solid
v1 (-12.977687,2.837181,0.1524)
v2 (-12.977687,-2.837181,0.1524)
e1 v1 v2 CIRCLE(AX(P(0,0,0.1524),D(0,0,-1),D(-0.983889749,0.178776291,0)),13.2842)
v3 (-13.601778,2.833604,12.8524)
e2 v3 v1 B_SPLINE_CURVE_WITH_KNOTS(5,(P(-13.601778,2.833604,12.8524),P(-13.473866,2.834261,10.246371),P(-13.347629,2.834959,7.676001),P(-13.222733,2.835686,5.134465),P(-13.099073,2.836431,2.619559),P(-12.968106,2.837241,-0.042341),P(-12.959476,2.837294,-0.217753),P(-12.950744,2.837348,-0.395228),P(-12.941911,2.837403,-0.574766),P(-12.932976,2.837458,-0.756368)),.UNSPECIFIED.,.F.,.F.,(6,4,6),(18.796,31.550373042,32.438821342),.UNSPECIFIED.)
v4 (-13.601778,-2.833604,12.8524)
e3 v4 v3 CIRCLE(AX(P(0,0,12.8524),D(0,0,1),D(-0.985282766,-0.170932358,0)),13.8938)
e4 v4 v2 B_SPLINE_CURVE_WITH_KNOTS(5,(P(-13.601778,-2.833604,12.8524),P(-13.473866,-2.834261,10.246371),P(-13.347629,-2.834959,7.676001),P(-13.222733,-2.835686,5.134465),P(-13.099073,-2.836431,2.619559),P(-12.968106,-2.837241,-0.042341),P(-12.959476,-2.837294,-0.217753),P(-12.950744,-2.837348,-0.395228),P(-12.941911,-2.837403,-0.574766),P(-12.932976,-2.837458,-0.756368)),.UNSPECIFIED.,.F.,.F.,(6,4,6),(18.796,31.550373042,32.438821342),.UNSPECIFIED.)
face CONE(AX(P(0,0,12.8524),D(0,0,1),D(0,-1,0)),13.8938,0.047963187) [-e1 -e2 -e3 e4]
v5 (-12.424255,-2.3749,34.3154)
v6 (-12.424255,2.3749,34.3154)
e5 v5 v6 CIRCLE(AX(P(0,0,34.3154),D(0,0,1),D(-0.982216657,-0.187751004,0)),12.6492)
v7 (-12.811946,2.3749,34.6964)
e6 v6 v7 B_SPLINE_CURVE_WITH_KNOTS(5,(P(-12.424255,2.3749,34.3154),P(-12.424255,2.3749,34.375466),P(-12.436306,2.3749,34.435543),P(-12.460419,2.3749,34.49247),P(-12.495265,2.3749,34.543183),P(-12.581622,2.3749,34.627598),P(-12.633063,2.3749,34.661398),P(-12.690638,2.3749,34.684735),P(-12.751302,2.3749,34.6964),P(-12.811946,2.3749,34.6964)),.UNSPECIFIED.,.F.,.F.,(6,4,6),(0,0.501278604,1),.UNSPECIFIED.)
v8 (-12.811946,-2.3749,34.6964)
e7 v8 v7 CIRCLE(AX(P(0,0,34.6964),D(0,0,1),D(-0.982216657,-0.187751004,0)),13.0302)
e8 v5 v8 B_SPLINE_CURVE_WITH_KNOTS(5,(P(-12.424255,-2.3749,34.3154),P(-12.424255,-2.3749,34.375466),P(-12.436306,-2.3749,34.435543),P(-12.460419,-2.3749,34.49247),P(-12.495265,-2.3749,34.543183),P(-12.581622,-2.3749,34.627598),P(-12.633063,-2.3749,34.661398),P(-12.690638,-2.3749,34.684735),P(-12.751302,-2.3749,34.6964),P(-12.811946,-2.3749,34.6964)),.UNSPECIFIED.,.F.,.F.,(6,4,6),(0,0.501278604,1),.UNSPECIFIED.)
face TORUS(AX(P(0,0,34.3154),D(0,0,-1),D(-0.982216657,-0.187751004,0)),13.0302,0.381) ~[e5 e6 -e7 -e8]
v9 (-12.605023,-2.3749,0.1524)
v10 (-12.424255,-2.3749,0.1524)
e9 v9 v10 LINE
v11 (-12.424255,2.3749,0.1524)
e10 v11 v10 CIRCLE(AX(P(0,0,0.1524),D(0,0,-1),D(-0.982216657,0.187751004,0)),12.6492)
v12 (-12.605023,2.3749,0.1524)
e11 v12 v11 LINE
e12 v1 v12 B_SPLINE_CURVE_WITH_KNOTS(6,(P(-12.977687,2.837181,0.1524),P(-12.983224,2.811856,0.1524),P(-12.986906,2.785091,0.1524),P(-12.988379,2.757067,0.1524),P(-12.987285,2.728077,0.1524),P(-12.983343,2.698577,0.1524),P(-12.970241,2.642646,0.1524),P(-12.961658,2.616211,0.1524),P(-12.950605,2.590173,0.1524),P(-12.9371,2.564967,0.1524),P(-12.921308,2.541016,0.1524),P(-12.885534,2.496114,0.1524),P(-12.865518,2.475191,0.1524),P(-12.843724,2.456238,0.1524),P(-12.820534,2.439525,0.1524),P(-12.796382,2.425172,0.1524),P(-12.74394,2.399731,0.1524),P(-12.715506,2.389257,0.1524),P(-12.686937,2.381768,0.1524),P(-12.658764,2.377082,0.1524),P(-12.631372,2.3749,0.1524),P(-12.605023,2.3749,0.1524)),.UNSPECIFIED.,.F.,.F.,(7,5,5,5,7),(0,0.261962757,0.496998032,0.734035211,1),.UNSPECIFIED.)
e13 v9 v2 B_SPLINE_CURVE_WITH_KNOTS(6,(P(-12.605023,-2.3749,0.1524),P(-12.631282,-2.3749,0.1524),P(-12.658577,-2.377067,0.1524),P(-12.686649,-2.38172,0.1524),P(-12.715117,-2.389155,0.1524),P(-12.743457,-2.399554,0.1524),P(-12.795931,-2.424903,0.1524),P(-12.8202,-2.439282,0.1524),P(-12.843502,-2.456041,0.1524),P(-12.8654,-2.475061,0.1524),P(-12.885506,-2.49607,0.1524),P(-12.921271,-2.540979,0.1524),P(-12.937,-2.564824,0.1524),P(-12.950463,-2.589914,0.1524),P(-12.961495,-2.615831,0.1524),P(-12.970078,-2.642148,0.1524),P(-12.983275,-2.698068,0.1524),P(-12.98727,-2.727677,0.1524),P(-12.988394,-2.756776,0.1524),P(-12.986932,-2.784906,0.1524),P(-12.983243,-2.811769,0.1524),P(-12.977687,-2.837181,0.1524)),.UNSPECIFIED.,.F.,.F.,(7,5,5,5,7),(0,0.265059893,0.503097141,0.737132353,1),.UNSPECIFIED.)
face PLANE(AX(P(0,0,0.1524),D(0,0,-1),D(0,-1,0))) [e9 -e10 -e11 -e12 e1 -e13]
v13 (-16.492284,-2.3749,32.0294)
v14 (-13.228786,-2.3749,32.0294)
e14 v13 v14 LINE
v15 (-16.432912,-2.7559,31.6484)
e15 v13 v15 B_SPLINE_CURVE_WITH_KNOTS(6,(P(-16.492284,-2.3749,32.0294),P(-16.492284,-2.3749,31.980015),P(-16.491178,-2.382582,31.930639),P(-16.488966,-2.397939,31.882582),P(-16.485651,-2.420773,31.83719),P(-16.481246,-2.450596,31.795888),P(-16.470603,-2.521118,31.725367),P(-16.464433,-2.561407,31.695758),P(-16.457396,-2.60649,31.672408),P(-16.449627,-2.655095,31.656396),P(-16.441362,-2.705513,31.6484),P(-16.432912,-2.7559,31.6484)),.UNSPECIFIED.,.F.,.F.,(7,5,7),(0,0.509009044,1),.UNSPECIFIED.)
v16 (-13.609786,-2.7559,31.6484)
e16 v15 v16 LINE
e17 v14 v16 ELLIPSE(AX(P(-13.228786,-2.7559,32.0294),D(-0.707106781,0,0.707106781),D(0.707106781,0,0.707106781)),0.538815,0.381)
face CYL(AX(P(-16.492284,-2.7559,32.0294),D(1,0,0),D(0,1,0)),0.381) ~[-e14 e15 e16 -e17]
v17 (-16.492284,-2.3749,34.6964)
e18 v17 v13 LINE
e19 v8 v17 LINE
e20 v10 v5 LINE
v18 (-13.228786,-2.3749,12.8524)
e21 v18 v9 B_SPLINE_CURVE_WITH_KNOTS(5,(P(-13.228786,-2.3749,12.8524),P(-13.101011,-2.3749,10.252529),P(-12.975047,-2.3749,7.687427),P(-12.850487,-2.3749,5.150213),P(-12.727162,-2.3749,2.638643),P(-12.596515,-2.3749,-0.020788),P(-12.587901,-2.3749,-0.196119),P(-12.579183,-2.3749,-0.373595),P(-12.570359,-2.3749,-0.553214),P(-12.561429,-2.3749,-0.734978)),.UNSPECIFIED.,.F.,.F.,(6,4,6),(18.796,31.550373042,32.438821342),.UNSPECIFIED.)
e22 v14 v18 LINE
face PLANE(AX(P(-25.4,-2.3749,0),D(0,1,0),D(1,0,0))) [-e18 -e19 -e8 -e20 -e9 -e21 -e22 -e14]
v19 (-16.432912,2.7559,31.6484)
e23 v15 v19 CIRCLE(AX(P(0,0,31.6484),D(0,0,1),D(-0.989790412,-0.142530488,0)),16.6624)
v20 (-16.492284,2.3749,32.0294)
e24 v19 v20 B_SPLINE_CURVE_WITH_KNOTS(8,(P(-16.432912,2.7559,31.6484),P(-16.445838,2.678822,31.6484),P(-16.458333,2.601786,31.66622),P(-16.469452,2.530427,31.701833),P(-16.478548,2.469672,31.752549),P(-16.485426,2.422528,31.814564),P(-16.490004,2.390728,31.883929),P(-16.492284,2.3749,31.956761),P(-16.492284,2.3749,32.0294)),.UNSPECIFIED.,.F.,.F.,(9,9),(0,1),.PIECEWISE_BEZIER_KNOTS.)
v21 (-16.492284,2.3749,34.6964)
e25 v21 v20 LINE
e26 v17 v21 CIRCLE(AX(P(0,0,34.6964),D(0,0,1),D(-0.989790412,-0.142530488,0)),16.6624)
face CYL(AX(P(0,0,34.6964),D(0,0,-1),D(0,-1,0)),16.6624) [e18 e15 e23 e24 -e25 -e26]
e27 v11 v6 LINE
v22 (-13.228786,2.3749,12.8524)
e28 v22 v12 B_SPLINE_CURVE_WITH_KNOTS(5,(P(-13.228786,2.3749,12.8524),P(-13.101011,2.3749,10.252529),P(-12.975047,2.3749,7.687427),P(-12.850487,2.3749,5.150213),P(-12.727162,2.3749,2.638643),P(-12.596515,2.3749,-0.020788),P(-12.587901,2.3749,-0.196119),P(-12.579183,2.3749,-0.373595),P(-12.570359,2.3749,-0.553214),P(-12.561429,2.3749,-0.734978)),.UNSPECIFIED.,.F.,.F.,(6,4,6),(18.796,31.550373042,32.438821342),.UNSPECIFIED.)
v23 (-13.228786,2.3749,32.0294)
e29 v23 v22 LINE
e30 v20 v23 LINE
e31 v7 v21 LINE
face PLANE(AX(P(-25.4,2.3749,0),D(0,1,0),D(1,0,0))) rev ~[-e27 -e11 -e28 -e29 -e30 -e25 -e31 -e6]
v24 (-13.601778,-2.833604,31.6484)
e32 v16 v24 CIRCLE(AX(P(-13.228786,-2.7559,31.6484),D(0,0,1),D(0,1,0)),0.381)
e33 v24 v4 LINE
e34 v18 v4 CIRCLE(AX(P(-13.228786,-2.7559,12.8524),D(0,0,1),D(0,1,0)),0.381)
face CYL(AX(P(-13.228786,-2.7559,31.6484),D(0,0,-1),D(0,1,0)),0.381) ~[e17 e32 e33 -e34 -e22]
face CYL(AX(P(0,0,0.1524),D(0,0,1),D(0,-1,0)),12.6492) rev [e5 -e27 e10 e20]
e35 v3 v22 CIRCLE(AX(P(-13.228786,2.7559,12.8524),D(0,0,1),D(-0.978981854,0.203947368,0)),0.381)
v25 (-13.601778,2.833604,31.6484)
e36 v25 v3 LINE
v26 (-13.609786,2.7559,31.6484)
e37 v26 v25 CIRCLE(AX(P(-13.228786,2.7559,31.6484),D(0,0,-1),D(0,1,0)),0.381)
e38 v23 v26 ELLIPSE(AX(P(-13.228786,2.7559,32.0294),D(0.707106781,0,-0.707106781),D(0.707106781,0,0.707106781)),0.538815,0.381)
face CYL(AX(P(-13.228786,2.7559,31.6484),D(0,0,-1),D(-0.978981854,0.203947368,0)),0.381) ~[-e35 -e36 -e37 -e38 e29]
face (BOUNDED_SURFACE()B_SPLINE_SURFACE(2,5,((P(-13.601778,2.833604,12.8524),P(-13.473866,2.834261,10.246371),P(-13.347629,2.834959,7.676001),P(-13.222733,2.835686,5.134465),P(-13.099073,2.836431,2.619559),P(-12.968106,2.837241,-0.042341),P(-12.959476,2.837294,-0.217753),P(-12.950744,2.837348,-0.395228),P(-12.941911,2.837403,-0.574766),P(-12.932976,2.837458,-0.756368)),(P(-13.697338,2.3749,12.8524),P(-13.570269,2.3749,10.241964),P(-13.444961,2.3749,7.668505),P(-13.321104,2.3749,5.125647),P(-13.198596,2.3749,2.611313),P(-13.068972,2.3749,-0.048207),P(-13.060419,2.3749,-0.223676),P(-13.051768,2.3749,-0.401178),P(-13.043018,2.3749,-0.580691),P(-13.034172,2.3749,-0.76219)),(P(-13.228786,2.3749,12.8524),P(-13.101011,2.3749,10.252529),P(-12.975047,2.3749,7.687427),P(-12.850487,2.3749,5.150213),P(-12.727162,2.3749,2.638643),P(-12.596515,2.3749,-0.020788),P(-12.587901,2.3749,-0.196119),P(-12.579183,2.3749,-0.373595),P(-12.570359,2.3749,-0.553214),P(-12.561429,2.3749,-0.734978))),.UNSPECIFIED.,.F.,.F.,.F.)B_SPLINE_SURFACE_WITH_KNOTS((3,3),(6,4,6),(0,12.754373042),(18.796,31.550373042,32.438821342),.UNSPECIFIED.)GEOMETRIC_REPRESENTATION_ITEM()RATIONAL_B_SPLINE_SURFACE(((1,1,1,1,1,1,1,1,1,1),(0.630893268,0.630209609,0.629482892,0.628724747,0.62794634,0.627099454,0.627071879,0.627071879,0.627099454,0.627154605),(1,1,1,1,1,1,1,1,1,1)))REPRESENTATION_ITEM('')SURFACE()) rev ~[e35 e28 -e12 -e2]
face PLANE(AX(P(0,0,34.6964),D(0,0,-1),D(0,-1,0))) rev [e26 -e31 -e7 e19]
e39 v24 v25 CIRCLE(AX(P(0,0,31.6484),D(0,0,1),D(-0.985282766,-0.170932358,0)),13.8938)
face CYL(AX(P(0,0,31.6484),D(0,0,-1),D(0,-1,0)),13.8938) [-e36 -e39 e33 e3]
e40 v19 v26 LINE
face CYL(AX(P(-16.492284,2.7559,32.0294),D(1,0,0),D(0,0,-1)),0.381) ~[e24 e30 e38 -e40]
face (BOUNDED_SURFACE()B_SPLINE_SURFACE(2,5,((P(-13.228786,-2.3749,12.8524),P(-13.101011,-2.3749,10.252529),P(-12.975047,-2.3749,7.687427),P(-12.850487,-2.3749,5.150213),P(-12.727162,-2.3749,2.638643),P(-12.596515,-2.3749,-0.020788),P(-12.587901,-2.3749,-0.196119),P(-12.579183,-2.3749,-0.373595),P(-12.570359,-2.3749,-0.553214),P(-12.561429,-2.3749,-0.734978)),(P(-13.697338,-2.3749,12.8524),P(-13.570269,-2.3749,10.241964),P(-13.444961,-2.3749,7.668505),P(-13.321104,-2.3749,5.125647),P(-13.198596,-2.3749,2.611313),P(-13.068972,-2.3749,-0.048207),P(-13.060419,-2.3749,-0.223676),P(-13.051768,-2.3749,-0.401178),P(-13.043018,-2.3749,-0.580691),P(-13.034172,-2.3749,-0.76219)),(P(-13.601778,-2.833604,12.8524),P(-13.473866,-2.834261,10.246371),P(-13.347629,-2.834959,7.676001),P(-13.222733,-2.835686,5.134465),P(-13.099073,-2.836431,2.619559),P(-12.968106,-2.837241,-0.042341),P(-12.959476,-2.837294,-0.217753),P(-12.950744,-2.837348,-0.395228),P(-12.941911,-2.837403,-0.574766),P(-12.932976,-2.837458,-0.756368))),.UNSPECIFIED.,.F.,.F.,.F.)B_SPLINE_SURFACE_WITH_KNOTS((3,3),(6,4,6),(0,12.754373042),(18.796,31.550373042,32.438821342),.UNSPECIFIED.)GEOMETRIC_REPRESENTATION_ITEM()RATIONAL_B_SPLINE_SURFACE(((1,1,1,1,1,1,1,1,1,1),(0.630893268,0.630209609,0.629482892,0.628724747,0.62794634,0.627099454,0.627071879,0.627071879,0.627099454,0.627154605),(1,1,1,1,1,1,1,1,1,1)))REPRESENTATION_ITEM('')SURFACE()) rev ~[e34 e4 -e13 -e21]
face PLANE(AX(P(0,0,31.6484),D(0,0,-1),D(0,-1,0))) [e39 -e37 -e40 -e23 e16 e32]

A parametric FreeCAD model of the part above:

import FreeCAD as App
import Part
import Sketcher
Q = App.Units.Quantity


def edges_at(feature, points):
    """Names of the edges that pass closest to the given points."""
    edges = feature.Shape.Edges
    near = lambda p: min(range(len(edges)), key=lambda i: edges[i].distToShape(Part.Vertex(*p))[0])
    return sorted({f"Edge{near(p) + 1}" for p in points})


def add_polygon(sketch, points):
    """Adds a closed chain of lines whose ends are joined by coincident constraints."""
    first, n = sketch.GeometryCount, len(points)
    for a, b in zip(points, points[1:] + points[:1]):
        sketch.addGeometry(Part.LineSegment(App.Vector(*a, 0), App.Vector(*b, 0)), False)
    for i in range(n):
        sketch.addConstraint(Sketcher.Constraint("Coincident", first + i, 2, first + (i + 1) % n, 1))

doc = App.newDocument("Part")
body = doc.addObject("PartDesign::Body", "Body")

# Sketch on YZ plane
sketch1 = body.newObject("Sketcher::SketchObject", "Sketch")
sketch1.AttachmentSupport = (doc.getObject("YZ_Plane"), [""])
sketch1.MapMode = "FlatFace"
add_polygon(sketch1, [(-12.6, 0.2), (-12.6, 34.7), (-16.7, 34.7), (-16.7, 31.6), (-13.9, 31.6), (-13.9, 12.9), (-13.3, 0.2)])  # lines 0-6
sketch1.addConstraint([
    Sketcher.Constraint("Vertical", 0),
    Sketcher.Constraint("Horizontal", 1),
    Sketcher.Constraint("Vertical", 2),
    Sketcher.Constraint("Horizontal", 3),
    Sketcher.Constraint("Vertical", 4),
    Sketcher.Constraint("Horizontal", 6),
    Sketcher.Constraint("DistanceY", 0, 1, 0, 2, Q("1.36 in")),
    Sketcher.Constraint("DistanceY", 2, 2, 2, 1, Q("0.12 in")),
    Sketcher.Constraint("DistanceY", 4, 2, 4, 1, Q("0.74 in")),
    Sketcher.Constraint("DistanceX", 1, 2, 1, 1, Q("0.158 in")),
    Sketcher.Constraint("DistanceX", 3, 1, 3, 2, Q("0.109 in")),
    Sketcher.Constraint("DistanceX", 6, 1, 6, 2, Q("0.025 in")),
    Sketcher.Constraint("DistanceX", 0, 2, -1, 1, Q("0.498 in")),
    Sketcher.Constraint("DistanceY", -1, 1, 0, 2, Q("1.366 in")),
])
revolution = body.newObject("PartDesign::Revolution", "Revolution")
revolution.Profile = sketch1
revolution.ReferenceAxis = (sketch1, ["V_Axis"])
revolution.Angle = 360

# Sketch on XY plane
sketch2 = body.newObject("Sketcher::SketchObject", "Sketch001")
sketch2.AttachmentSupport = (doc.getObject("XY_Plane"), [""])
sketch2.MapMode = "FlatFace"
add_polygon(sketch2, [(-25.4, 2.4), (-25.4, -2.4), (-0.3, -2.4), (-0.3, 2.4)])  # lines 0-3
sketch2.addConstraint([
    Sketcher.Constraint("Vertical", 0),
    Sketcher.Constraint("Horizontal", 1),
    Sketcher.Constraint("Vertical", 2),
    Sketcher.Constraint("Horizontal", 3),
    Sketcher.Constraint("DistanceX", 0, 2, -1, 1, Q("1 in")),
    Sketcher.Constraint("DistanceX", 1, 1, 1, 2, Q("0.99 in")),
    Sketcher.Constraint("DistanceY", 0, 2, 0, 1, Q("0.187 in")),
    Sketcher.Constraint("DistanceY", 0, 2, -1, 1, Q("0.0935 in")),
])
pocket1 = body.newObject("PartDesign::Pocket", "Pocket")
pocket1.Profile = sketch2
pocket1.Type = "ThroughAll"
pocket1.Reversed = True
doc.recompute()

fillet = body.newObject("PartDesign::Fillet", "Fillet")
fillet.Base = (pocket1, edges_at(pocket1, [
    (-13.38, -2.375, 6.502),
    (-13.689, -2.375, 22.25),
    (-13.38, 2.375, 6.502),
    (-13.689, 2.375, 22.25),
    (-15.091, -2.375, 31.648),
    (-15.091, 2.375, 31.648),
    (12.649, 0, 34.696),
    (13.894, 0, 12.852),
]))
fillet.Radius = Q("0.015 in")

doc.recompute()
